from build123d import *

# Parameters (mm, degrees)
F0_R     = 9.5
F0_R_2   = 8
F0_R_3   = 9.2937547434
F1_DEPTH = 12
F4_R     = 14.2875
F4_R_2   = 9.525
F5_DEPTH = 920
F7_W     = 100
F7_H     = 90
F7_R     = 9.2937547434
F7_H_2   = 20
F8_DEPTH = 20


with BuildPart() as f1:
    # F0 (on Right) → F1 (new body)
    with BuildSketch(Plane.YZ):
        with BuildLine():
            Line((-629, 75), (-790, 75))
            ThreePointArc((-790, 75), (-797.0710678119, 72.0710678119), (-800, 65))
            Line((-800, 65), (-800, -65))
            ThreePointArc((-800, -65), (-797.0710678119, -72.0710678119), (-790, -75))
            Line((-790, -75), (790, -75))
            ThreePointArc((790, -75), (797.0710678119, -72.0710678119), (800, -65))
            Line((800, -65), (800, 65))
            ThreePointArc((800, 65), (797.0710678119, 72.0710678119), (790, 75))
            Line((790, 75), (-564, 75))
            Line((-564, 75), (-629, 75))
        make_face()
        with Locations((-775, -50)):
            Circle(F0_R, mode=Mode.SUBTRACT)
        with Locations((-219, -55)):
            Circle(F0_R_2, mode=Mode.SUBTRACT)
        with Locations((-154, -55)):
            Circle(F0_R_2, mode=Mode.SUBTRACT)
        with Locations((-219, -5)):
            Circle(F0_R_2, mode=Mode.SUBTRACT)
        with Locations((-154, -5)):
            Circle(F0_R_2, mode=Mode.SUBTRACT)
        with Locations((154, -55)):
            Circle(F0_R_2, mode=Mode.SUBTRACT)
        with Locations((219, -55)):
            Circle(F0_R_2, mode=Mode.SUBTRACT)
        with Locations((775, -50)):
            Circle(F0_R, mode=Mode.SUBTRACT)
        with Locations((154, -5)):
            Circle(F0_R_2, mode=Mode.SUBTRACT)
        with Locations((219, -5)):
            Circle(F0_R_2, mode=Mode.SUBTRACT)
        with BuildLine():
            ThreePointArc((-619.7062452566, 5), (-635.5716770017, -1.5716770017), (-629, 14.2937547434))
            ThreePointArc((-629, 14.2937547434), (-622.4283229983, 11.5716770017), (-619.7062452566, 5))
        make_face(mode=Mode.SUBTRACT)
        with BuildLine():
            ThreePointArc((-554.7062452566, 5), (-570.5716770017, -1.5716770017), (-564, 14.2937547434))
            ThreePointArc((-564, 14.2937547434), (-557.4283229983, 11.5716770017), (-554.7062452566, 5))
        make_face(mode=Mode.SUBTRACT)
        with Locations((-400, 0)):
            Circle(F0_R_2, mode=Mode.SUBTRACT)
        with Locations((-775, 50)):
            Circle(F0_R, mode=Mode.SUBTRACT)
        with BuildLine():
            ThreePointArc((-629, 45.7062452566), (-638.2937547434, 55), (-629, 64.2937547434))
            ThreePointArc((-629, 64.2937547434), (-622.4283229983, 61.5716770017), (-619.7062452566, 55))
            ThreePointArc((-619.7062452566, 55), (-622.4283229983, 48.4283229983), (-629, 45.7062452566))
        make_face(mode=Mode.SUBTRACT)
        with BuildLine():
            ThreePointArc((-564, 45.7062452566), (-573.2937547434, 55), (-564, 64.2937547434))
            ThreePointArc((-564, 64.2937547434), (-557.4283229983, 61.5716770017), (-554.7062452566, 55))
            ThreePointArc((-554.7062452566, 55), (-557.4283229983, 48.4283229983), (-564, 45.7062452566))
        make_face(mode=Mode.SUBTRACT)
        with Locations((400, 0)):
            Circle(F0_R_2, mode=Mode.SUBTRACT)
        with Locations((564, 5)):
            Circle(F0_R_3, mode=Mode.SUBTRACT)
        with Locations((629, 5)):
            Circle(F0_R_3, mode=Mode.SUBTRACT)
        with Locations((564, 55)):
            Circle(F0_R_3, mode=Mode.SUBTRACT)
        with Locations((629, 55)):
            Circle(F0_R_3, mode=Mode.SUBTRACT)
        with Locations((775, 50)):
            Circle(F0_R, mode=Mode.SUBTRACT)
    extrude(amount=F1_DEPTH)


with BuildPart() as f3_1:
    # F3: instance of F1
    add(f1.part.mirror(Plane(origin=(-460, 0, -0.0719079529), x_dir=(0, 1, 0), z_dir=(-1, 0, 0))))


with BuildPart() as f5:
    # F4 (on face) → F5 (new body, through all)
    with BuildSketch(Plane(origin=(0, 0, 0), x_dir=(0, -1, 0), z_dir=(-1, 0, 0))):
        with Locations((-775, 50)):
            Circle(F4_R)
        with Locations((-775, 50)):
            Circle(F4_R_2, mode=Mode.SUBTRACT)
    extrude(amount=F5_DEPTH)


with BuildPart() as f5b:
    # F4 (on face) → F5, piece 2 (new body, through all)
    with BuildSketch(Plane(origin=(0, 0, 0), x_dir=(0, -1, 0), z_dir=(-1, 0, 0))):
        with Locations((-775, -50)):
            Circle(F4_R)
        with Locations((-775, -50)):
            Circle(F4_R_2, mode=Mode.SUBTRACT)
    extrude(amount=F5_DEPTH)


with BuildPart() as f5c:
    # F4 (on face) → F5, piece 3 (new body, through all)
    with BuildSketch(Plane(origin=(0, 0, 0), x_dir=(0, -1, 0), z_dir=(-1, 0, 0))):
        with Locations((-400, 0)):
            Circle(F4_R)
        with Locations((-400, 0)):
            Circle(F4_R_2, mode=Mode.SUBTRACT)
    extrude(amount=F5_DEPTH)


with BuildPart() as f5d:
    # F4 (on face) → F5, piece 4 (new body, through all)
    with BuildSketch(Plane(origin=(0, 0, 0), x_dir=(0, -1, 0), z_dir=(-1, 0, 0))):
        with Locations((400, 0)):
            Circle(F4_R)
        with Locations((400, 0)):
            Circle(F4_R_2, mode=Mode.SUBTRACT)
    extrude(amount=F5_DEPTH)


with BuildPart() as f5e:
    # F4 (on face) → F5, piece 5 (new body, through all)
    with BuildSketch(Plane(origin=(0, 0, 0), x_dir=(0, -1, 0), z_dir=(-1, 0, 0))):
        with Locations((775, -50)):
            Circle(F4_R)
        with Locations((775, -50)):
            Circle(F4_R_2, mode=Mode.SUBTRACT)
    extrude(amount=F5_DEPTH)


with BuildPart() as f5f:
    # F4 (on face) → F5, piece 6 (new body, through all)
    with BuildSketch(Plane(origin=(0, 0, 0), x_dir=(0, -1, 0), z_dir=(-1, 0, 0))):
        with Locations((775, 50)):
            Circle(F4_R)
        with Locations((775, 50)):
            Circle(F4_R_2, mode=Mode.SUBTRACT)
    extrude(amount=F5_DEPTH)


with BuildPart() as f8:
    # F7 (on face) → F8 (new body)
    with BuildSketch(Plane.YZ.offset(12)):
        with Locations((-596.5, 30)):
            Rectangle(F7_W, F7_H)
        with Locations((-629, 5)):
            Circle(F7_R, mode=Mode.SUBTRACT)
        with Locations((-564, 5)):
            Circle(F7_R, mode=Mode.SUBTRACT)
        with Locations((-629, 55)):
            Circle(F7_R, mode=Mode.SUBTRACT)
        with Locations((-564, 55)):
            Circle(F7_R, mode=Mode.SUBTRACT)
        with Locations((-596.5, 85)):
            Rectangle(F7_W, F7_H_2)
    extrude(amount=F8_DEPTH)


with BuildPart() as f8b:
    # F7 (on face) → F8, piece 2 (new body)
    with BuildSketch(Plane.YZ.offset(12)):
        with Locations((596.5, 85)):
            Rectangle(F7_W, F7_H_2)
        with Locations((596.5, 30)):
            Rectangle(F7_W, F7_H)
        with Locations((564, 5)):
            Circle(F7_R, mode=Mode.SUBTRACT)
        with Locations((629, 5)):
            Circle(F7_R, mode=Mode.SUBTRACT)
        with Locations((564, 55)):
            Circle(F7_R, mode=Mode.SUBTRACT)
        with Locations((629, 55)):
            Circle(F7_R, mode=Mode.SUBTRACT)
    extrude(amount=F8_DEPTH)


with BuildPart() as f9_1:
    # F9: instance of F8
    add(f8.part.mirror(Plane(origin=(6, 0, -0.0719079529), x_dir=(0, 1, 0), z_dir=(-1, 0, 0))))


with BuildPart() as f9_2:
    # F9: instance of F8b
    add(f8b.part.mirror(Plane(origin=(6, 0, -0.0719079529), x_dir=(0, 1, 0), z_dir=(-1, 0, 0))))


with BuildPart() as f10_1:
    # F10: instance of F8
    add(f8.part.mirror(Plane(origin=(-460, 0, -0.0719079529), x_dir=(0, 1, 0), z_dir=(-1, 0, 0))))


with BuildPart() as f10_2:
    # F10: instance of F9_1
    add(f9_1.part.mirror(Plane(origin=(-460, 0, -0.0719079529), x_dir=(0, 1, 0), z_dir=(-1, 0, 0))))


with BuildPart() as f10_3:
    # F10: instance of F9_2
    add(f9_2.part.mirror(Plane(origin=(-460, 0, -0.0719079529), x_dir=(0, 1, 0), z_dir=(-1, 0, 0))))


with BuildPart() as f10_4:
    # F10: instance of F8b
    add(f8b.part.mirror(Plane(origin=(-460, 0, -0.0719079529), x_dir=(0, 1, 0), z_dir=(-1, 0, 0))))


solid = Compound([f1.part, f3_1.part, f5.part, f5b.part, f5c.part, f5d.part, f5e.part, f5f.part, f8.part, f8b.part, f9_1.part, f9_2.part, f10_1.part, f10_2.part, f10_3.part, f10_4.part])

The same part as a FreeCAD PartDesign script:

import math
import FreeCAD as App
import Part
import Sketcher
from FreeCAD import Vector
Q = App.Units.Quantity


def add_polygon(sketch, points):
    """Adds a closed chain of lines whose ends are joined by coincident constraints."""
    first, n = sketch.GeometryCount, len(points)
    for a, b in zip(points, points[1:] + points[:1]):
        sketch.addGeometry(Part.LineSegment(App.Vector(*a, 0), App.Vector(*b, 0)), False)
    for i in range(n):
        sketch.addConstraint(Sketcher.Constraint("Coincident", first + i, 2, first + (i + 1) % n, 1))

doc = App.newDocument("Part")
body = doc.addObject("PartDesign::Body", "Body")

# Sketch on YZ plane
sketch1 = doc.addObject("Sketcher::SketchObject", "Sketch")
body.addObject(sketch1)
sketch1.AttachmentSupport = (doc.YZ_Plane, [""])
sketch1.MapMode = "FlatFace"
sketch1.addGeometry([
    Part.ArcOfCircle(Part.Circle(Vector(-790, 65, 0), Vector(0, 0, 1), 10), math.radians(90), math.radians(180)),  # 0
    Part.LineSegment(Vector(-800, 65, 0), Vector(-800, -65, 0)),  # 1
    Part.ArcOfCircle(Part.Circle(Vector(-790, -65, 0), Vector(0, 0, 1), 10), math.radians(180), math.radians(270)),  # 2
    Part.LineSegment(Vector(-790, -75, 0), Vector(790, -75, 0)),  # 3
    Part.ArcOfCircle(Part.Circle(Vector(790, -65, 0), Vector(0, 0, 1), 10), math.radians(-90), math.radians(0)),  # 4
    Part.LineSegment(Vector(800, -65, 0), Vector(800, 65, 0)),  # 5
    Part.ArcOfCircle(Part.Circle(Vector(790, 65, 0), Vector(0, 0, 1), 10), math.radians(0), math.radians(90)),  # 6
    Part.LineSegment(Vector(790, 75, 0), Vector(-790, 75, 0)),  # 7
    Part.Circle(Vector(-775, -50, 0), Vector(0, 0, 1), 10),  # 8
    Part.Circle(Vector(-219, -55, 0), Vector(0, 0, 1), 8),  # 9
    Part.Circle(Vector(-154, -55, 0), Vector(0, 0, 1), 8),  # 10
    Part.Circle(Vector(-400, 0, 0), Vector(0, 0, 1), 8),  # 11
    Part.Circle(Vector(-219, -5, 0), Vector(0, 0, 1), 8),  # 12
    Part.Circle(Vector(-154, -5, 0), Vector(0, 0, 1), 8),  # 13
    Part.Circle(Vector(154, -55, 0), Vector(0, 0, 1), 8),  # 14
    Part.Circle(Vector(219, -55, 0), Vector(0, 0, 1), 8),  # 15
    Part.Circle(Vector(775, -50, 0), Vector(0, 0, 1), 10),  # 16
    Part.Circle(Vector(154, -5, 0), Vector(0, 0, 1), 8),  # 17
    Part.Circle(Vector(219, -5, 0), Vector(0, 0, 1), 8),  # 18
    Part.Circle(Vector(400, 0, 0), Vector(0, 0, 1), 8),  # 19
    Part.ArcOfCircle(Part.Circle(Vector(-629, 5, 0), Vector(0, 0, 1), 9), math.radians(0), math.radians(90)),  # 20
    Part.ArcOfCircle(Part.Circle(Vector(-629, 5, 0), Vector(0, 0, 1), 9), math.radians(90), math.radians(360)),  # 21
    Part.ArcOfCircle(Part.Circle(Vector(-564, 5, 0), Vector(0, 0, 1), 9), math.radians(0), math.radians(90)),  # 22
    Part.ArcOfCircle(Part.Circle(Vector(-564, 5, 0), Vector(0, 0, 1), 9), math.radians(90), math.radians(360)),  # 23
    Part.Circle(Vector(-775, 50, 0), Vector(0, 0, 1), 10),  # 24
    Part.ArcOfCircle(Part.Circle(Vector(-629, 55, 0), Vector(0, 0, 1), 9), math.radians(-90), math.radians(0)),  # 25
    Part.ArcOfCircle(Part.Circle(Vector(-629, 55, 0), Vector(0, 0, 1), 9), math.radians(90), math.radians(270)),  # 26
    Part.ArcOfCircle(Part.Circle(Vector(-629, 55, 0), Vector(0, 0, 1), 9), math.radians(0), math.radians(90)),  # 27
    Part.ArcOfCircle(Part.Circle(Vector(-564, 55, 0), Vector(0, 0, 1), 9), math.radians(-90), math.radians(0)),  # 28
    Part.ArcOfCircle(Part.Circle(Vector(-564, 55, 0), Vector(0, 0, 1), 9), math.radians(90), math.radians(270)),  # 29
    Part.ArcOfCircle(Part.Circle(Vector(-564, 55, 0), Vector(0, 0, 1), 9), math.radians(0), math.radians(90)),  # 30
    Part.Circle(Vector(564, 5, 0), Vector(0, 0, 1), 9),  # 31
    Part.Circle(Vector(629, 5, 0), Vector(0, 0, 1), 9),  # 32
    Part.Circle(Vector(564, 55, 0), Vector(0, 0, 1), 9),  # 33
    Part.Circle(Vector(629, 55, 0), Vector(0, 0, 1), 9),  # 34
    Part.Circle(Vector(775, 50, 0), Vector(0, 0, 1), 10),  # 35
], False)
sketch1.addConstraint([
    Sketcher.Constraint("Tangent", 0, 2, 1, 1),
    Sketcher.Constraint("Tangent", 1, 2, 2, 1),
    Sketcher.Constraint("Tangent", 2, 2, 3, 1),
    Sketcher.Constraint("Tangent", 3, 2, 4, 1),
    Sketcher.Constraint("Tangent", 4, 2, 5, 1),
    Sketcher.Constraint("Tangent", 5, 2, 6, 1),
    Sketcher.Constraint("Tangent", 6, 2, 7, 1),
    Sketcher.Constraint("Tangent", 7, 2, 0, 1),
    Sketcher.Constraint("Tangent", 20, 1, 21, 2),
    Sketcher.Constraint("Coincident", 21, 1, 20, 2),
    Sketcher.Constraint("Tangent", 22, 1, 23, 2),
    Sketcher.Constraint("Coincident", 23, 1, 22, 2),
    Sketcher.Constraint("Tangent", 25, 1, 26, 2),
    Sketcher.Constraint("Tangent", 26, 1, 27, 2),
    Sketcher.Constraint("Tangent", 27, 1, 25, 2),
    Sketcher.Constraint("Tangent", 28, 1, 29, 2),
    Sketcher.Constraint("Tangent", 29, 1, 30, 2),
    Sketcher.Constraint("Tangent", 30, 1, 28, 2),
    Sketcher.Constraint("Vertical", 1),
    Sketcher.Constraint("Horizontal", 3),
    Sketcher.Constraint("Vertical", 5),
    Sketcher.Constraint("Horizontal", 7),
    Sketcher.Constraint("Equal", 0, 2),
    Sketcher.Constraint("Equal", 2, 4),
    Sketcher.Constraint("Equal", 4, 6),
    Sketcher.Constraint("Equal", 9, 10),
    Sketcher.Constraint("Equal", 10, 11),
    Sketcher.Constraint("Equal", 11, 12),
    Sketcher.Constraint("Equal", 12, 13),
    Sketcher.Constraint("Equal", 13, 14),
    Sketcher.Constraint("Equal", 14, 15),
    Sketcher.Constraint("Equal", 8, 16),
    Sketcher.Constraint("Equal", 15, 17),
    Sketcher.Constraint("Equal", 17, 18),
    Sketcher.Constraint("Equal", 18, 19),
    Sketcher.Constraint("Equal", 21, 22),
    Sketcher.Constraint("Equal", 16, 24),
    Sketcher.Constraint("Equal", 23, 25),
    Sketcher.Constraint("Equal", 27, 28),
    Sketcher.Constraint("Equal", 30, 31),
    Sketcher.Constraint("Equal", 31, 32),
    Sketcher.Constraint("Equal", 32, 33),
    Sketcher.Constraint("Equal", 33, 34),
    Sketcher.Constraint("Equal", 24, 35),
    Sketcher.Constraint("Symmetric", 0, 3, 4, 3, -1, 1),
    Sketcher.Constraint("Symmetric", 11, 3, 19, 3, -1, 1),
    Sketcher.Constraint("Symmetric", 16, 3, 24, 3, -1, 1),
    Sketcher.Constraint("Symmetric", 8, 3, 35, 3, -1, 1),
    Sketcher.Constraint("Symmetric", 10, 3, 14, 3, -2),
    Sketcher.Constraint("Symmetric", 9, 3, 15, 3, -2),
    Sketcher.Constraint("Symmetric", 8, 3, 16, 3, -2),
    Sketcher.Constraint("Symmetric", 13, 3, 17, 3, -2),
    Sketcher.Constraint("Symmetric", 12, 3, 18, 3, -2),
    Sketcher.Constraint("Symmetric", 22, 3, 31, 3, -2),
    Sketcher.Constraint("Symmetric", 20, 3, 32, 3, -2),
    Sketcher.Constraint("Symmetric", 28, 3, 33, 3, -2),
    Sketcher.Constraint("Symmetric", 25, 3, 34, 3, -2),
    Sketcher.Constraint("PointOnObject", 11, 3, -1),
    Sketcher.Constraint("Horizontal", 9, 3, 10, 3),
    Sketcher.Constraint("Horizontal", 12, 3, 13, 3),
    Sketcher.Constraint("Horizontal", 21, 3, 22, 3),
    Sketcher.Constraint("Horizontal", 27, 3, 28, 3),
    Sketcher.Constraint("Horizontal", 32, 3, 20, 1),
    Sketcher.Constraint("Horizontal", 20, 1, 22, 1),
    Sketcher.Constraint("Horizontal", 34, 3, 27, 1),
    Sketcher.Constraint("Horizontal", 27, 1, 30, 1),
    Sketcher.Constraint("Vertical", 9, 3, 12, 3),
    Sketcher.Constraint("Vertical", 10, 3, 13, 3),
    Sketcher.Constraint("Vertical", 21, 3, 25, 3),
    Sketcher.Constraint("Vertical", 23, 3, 28, 3),
    Sketcher.Constraint("Vertical", 27, 3, 21, 1),
    Sketcher.Constraint("Vertical", 30, 3, 23, 1),
    Sketcher.Constraint("Vertical", 21, 1, 25, 1),
    Sketcher.Constraint("Vertical", 25, 1, 26, 1),
    Sketcher.Constraint("Vertical", 23, 1, 28, 1),
    Sketcher.Constraint("Vertical", 28, 1, 29, 1),
    Sketcher.Constraint("Diameter", 8, Q("19 mm")),
    Sketcher.Constraint("Diameter", 9, Q("16 mm")),
    Sketcher.Constraint("Radius", 0, Q("10 mm")),
    Sketcher.Constraint("DistanceX", 3, 1, 3, 2, Q("1580 mm")),
    Sketcher.Constraint("DistanceY", 1, 2, 1, 1, Q("130 mm")),
    Sketcher.Constraint("DistanceX", 8, 3, -1, 1, Q("775 mm")),
    Sketcher.Constraint("DistanceY", 8, 3, -1, 1, Q("50 mm")),
    Sketcher.Constraint("DistanceX", 9, 3, -1, 1, Q("219 mm")),
    Sketcher.Constraint("DistanceY", 9, 3, -1, 1, Q("55 mm")),
    Sketcher.Constraint("DistanceX", 10, 3, -1, 1, Q("154 mm")),
    Sketcher.Constraint("DistanceX", 11, 3, -1, 1, Q("400 mm")),
    Sketcher.Constraint("DistanceY", 12, 3, -1, 1, Q("5 mm")),
    Sketcher.Constraint("DistanceX", 20, 3, -1, 1, Q("629 mm")),
    Sketcher.Constraint("DistanceY", -1, 1, 20, 3, Q("5 mm")),
    Sketcher.Constraint("DistanceX", 22, 3, -1, 1, Q("564 mm")),
    Sketcher.Constraint("DistanceY", -1, 1, 25, 3, Q("55 mm")),
    Sketcher.Constraint("Diameter", 31, Q("18.587509 mm")),
])
pad1 = doc.addObject("PartDesign::Pad", "Pad")
body.addObject(pad1)
pad1.Profile = sketch1
pad1.Length = 12
body2 = doc.addObject("PartDesign::Body", "Body001")
doc.recompute()

mirroring = doc.addObject("Part::Mirroring", "Mirroring")
mirroring.Source = body
mirroring.Base = Vector(-460, 0, -0.071908)
mirroring.Normal = Vector(-1, 0, 0)
body2.BaseFeature = mirroring
doc.recompute()
body3 = doc.addObject("PartDesign::Body", "Body002")

# Sketch on YZ plane
sketch2 = doc.addObject("Sketcher::SketchObject", "Sketch001")
body3.addObject(sketch2)
sketch2.AttachmentSupport = (doc.getObject("YZ_Plane002"), [""])
sketch2.MapMode = "FlatFace"
sketch2.addGeometry([
    Part.Circle(Vector(775, 50, 0), Vector(0, 0, 1), 14),
    Part.Circle(Vector(775, 50, 0), Vector(0, 0, 1), 10),
], False)
sketch2.addConstraint([
    Sketcher.Constraint("Coincident", 1, 3, 0, 3),
    Sketcher.Constraint("Diameter", 1, Q("19.05 mm")),
    Sketcher.Constraint("Diameter", 0, Q("28.575 mm")),
    Sketcher.Constraint("DistanceX", -1, 1, 0, 3, Q("775 mm")),
    Sketcher.Constraint("DistanceY", -1, 1, 0, 3, Q("50 mm")),
])
pad2 = doc.addObject("PartDesign::Pad", "Pad001")
body3.addObject(pad2)
pad2.Profile = sketch2
pad2.Length = 920
pad2.Reversed = True
body4 = doc.addObject("PartDesign::Body", "Body003")

# Sketch on YZ plane
sketch3 = doc.addObject("Sketcher::SketchObject", "Sketch002")
body4.addObject(sketch3)
sketch3.AttachmentSupport = (doc.getObject("YZ_Plane003"), [""])
sketch3.MapMode = "FlatFace"
sketch3.addGeometry([
    Part.Circle(Vector(775, -50, 0), Vector(0, 0, 1), 14),
    Part.Circle(Vector(775, -50, 0), Vector(0, 0, 1), 10),
], False)
sketch3.addConstraint([
    Sketcher.Constraint("Coincident", 1, 3, 0, 3),
    Sketcher.Constraint("Diameter", 1, Q("19.05 mm")),
    Sketcher.Constraint("Diameter", 0, Q("28.575 mm")),
    Sketcher.Constraint("DistanceX", -1, 1, 0, 3, Q("775 mm")),
    Sketcher.Constraint("DistanceY", 0, 3, -1, 1, Q("50 mm")),
])
pad3 = doc.addObject("PartDesign::Pad", "Pad002")
body4.addObject(pad3)
pad3.Profile = sketch3
pad3.Length = 920
pad3.Reversed = True
body5 = doc.addObject("PartDesign::Body", "Body004")

# Sketch on YZ plane
sketch4 = doc.addObject("Sketcher::SketchObject", "Sketch003")
body5.addObject(sketch4)
sketch4.AttachmentSupport = (doc.getObject("YZ_Plane004"), [""])
sketch4.MapMode = "FlatFace"
sketch4.addGeometry([
    Part.Circle(Vector(400, 0, 0), Vector(0, 0, 1), 14),
    Part.Circle(Vector(400, 0, 0), Vector(0, 0, 1), 10),
], False)
sketch4.addConstraint([
    Sketcher.Constraint("Coincident", 1, 3, 0, 3),
    Sketcher.Constraint("PointOnObject", 0, 3, -1),
    Sketcher.Constraint("Diameter", 1, Q("19.05 mm")),
    Sketcher.Constraint("Diameter", 0, Q("28.575 mm")),
    Sketcher.Constraint("DistanceX", -1, 1, 0, 3, Q("400 mm")),
])
pad4 = doc.addObject("PartDesign::Pad", "Pad003")
body5.addObject(pad4)
pad4.Profile = sketch4
pad4.Length = 920
pad4.Reversed = True
body6 = doc.addObject("PartDesign::Body", "Body005")

# Sketch on YZ plane
sketch5 = doc.addObject("Sketcher::SketchObject", "Sketch004")
body6.addObject(sketch5)
sketch5.AttachmentSupport = (doc.getObject("YZ_Plane005"), [""])
sketch5.MapMode = "FlatFace"
sketch5.addGeometry([
    Part.Circle(Vector(-400, 0, 0), Vector(0, 0, 1), 14),
    Part.Circle(Vector(-400, 0, 0), Vector(0, 0, 1), 10),
], False)
sketch5.addConstraint([
    Sketcher.Constraint("Coincident", 1, 3, 0, 3),
    Sketcher.Constraint("PointOnObject", 0, 3, -1),
    Sketcher.Constraint("Diameter", 1, Q("19.05 mm")),
    Sketcher.Constraint("Diameter", 0, Q("28.575 mm")),
    Sketcher.Constraint("DistanceX", 0, 3, -1, 1, Q("400 mm")),
])
pad5 = doc.addObject("PartDesign::Pad", "Pad004")
body6.addObject(pad5)
pad5.Profile = sketch5
pad5.Length = 920
pad5.Reversed = True
body7 = doc.addObject("PartDesign::Body", "Body006")

# Sketch on YZ plane
sketch6 = doc.addObject("Sketcher::SketchObject", "Sketch005")
body7.addObject(sketch6)
sketch6.AttachmentSupport = (doc.getObject("YZ_Plane006"), [""])
sketch6.MapMode = "FlatFace"
sketch6.addGeometry([
    Part.Circle(Vector(-775, -50, 0), Vector(0, 0, 1), 14),
    Part.Circle(Vector(-775, -50, 0), Vector(0, 0, 1), 10),
], False)
sketch6.addConstraint([
    Sketcher.Constraint("Coincident", 1, 3, 0, 3),
    Sketcher.Constraint("Diameter", 1, Q("19.05 mm")),
    Sketcher.Constraint("Diameter", 0, Q("28.575 mm")),
    Sketcher.Constraint("DistanceX", 0, 3, -1, 1, Q("775 mm")),
    Sketcher.Constraint("DistanceY", 0, 3, -1, 1, Q("50 mm")),
])
pad6 = doc.addObject("PartDesign::Pad", "Pad005")
body7.addObject(pad6)
pad6.Profile = sketch6
pad6.Length = 920
pad6.Reversed = True
body8 = doc.addObject("PartDesign::Body", "Body007")

# Sketch on YZ plane
sketch7 = doc.addObject("Sketcher::SketchObject", "Sketch006")
body8.addObject(sketch7)
sketch7.AttachmentSupport = (doc.getObject("YZ_Plane007"), [""])
sketch7.MapMode = "FlatFace"
sketch7.addGeometry([
    Part.Circle(Vector(-775, 50, 0), Vector(0, 0, 1), 14),
    Part.Circle(Vector(-775, 50, 0), Vector(0, 0, 1), 10),
], False)
sketch7.addConstraint([
    Sketcher.Constraint("Coincident", 1, 3, 0, 3),
    Sketcher.Constraint("Diameter", 1, Q("19.05 mm")),
    Sketcher.Constraint("Diameter", 0, Q("28.575 mm")),
    Sketcher.Constraint("DistanceX", 0, 3, -1, 1, Q("775 mm")),
    Sketcher.Constraint("DistanceY", -1, 1, 0, 3, Q("50 mm")),
])
pad7 = doc.addObject("PartDesign::Pad", "Pad006")
body8.addObject(pad7)
pad7.Profile = sketch7
pad7.Length = 920
pad7.Reversed = True
body9 = doc.addObject("PartDesign::Body", "Body008")

# Sketch on YZ plane
sketch8 = doc.addObject("Sketcher::SketchObject", "Sketch007")
body9.addObject(sketch8)
sketch8.AttachmentSupport = (doc.getObject("YZ_Plane008"), [""])
sketch8.MapMode = "FlatFace"
sketch8.AttachmentOffset = App.Placement(Vector(0, 0, 12), App.Rotation())
add_polygon(sketch8, [(-646, -15), (-546, -15), (-546, 95), (-646, 95)])  # lines 0-3
sketch8.addGeometry(Part.Circle(Vector(-629, 5, 0), Vector(0, 0, 1), 9), False)  # 4
sketch8.addGeometry(Part.Circle(Vector(-564, 5, 0), Vector(0, 0, 1), 9), False)  # 5
sketch8.addGeometry(Part.Circle(Vector(-629, 55, 0), Vector(0, 0, 1), 9), False)  # 6
sketch8.addGeometry(Part.Circle(Vector(-564, 55, 0), Vector(0, 0, 1), 9), False)  # 7
sketch8.addConstraint([
    Sketcher.Constraint("Horizontal", 0),
    Sketcher.Constraint("Vertical", 1),
    Sketcher.Constraint("Horizontal", 2),
    Sketcher.Constraint("Vertical", 3),
    Sketcher.Constraint("Equal", 4, 5),
    Sketcher.Constraint("Equal", 5, 6),
    Sketcher.Constraint("Equal", 6, 7),
    Sketcher.Constraint("Horizontal", 4, 3, 5, 3),
    Sketcher.Constraint("Horizontal", 6, 3, 7, 3),
    Sketcher.Constraint("Vertical", 4, 3, 6, 3),
    Sketcher.Constraint("Vertical", 5, 3, 7, 3),
    Sketcher.Constraint("DistanceX", 0, 1, 0, 2, Q("100 mm")),
    Sketcher.Constraint("DistanceY", 1, 1, 1, 2, Q("110 mm")),
    Sketcher.Constraint("DistanceX", 4, 3, -1, 1, Q("629 mm")),
    Sketcher.Constraint("DistanceY", -1, 1, 4, 3, Q("5 mm")),
    Sketcher.Constraint("DistanceX", 5, 3, -1, 1, Q("564 mm")),
    Sketcher.Constraint("DistanceY", -1, 1, 6, 3, Q("55 mm")),
    Sketcher.Constraint("DistanceY", 0, 2, -1, 1, Q("15 mm")),
    Sketcher.Constraint("DistanceX", 0, 2, -1, 1, Q("546.5 mm")),
    Sketcher.Constraint("Diameter", 4, Q("18.587509 mm")),
])
pad8 = doc.addObject("PartDesign::Pad", "Pad007")
body9.addObject(pad8)
pad8.Profile = sketch8
pad8.Length = 20
body10 = doc.addObject("PartDesign::Body", "Body009")

# Sketch on YZ plane
sketch9 = doc.addObject("Sketcher::SketchObject", "Sketch008")
body10.addObject(sketch9)
sketch9.AttachmentSupport = (doc.getObject("YZ_Plane009"), [""])
sketch9.MapMode = "FlatFace"
sketch9.AttachmentOffset = App.Placement(Vector(0, 0, 12), App.Rotation())
add_polygon(sketch9, [(546, 95), (546, -15), (646, -15), (646, 95)])  # lines 0-3
sketch9.addGeometry(Part.Circle(Vector(564, 5, 0), Vector(0, 0, 1), 9), False)  # 4
sketch9.addGeometry(Part.Circle(Vector(629, 5, 0), Vector(0, 0, 1), 9), False)  # 5
sketch9.addGeometry(Part.Circle(Vector(564, 55, 0), Vector(0, 0, 1), 9), False)  # 6
sketch9.addGeometry(Part.Circle(Vector(629, 55, 0), Vector(0, 0, 1), 9), False)  # 7
sketch9.addConstraint([
    Sketcher.Constraint("Vertical", 0),
    Sketcher.Constraint("Horizontal", 1),
    Sketcher.Constraint("Vertical", 2),
    Sketcher.Constraint("Horizontal", 3),
    Sketcher.Constraint("Equal", 4, 5),
    Sketcher.Constraint("Equal", 5, 6),
    Sketcher.Constraint("Equal", 6, 7),
    Sketcher.Constraint("Horizontal", 4, 3, 5, 3),
    Sketcher.Constraint("Horizontal", 6, 3, 7, 3),
    Sketcher.Constraint("Vertical", 4, 3, 6, 3),
    Sketcher.Constraint("Vertical", 5, 3, 7, 3),
    Sketcher.Constraint("DistanceX", 1, 1, 1, 2, Q("100 mm")),
    Sketcher.Constraint("DistanceY", 0, 2, 0, 1, Q("110 mm")),
    Sketcher.Constraint("DistanceX", -1, 1, 4, 3, Q("564 mm")),
    Sketcher.Constraint("DistanceY", -1, 1, 4, 3, Q("5 mm")),
    Sketcher.Constraint("DistanceX", -1, 1, 5, 3, Q("629 mm")),
    Sketcher.Constraint("DistanceY", -1, 1, 6, 3, Q("55 mm")),
    Sketcher.Constraint("DistanceY", 0, 2, -1, 1, Q("15 mm")),
    Sketcher.Constraint("DistanceX", -1, 1, 0, 2, Q("546.5 mm")),
    Sketcher.Constraint("Diameter", 4, Q("18.587509 mm")),
])
pad9 = doc.addObject("PartDesign::Pad", "Pad008")
body10.addObject(pad9)
pad9.Profile = sketch9
pad9.Length = 20
body11 = doc.addObject("PartDesign::Body", "Body010")
doc.recompute()

mirroring2 = doc.addObject("Part::Mirroring", "Mirroring001")
mirroring2.Source = body9
mirroring2.Base = Vector(6, 0, -0.071908)
mirroring2.Normal = Vector(-1, 0, 0)
body11.BaseFeature = mirroring2
doc.recompute()
body12 = doc.addObject("PartDesign::Body", "Body011")
doc.recompute()

mirroring3 = doc.addObject("Part::Mirroring", "Mirroring002")
mirroring3.Source = body10
mirroring3.Base = Vector(6, 0, -0.071908)
mirroring3.Normal = Vector(-1, 0, 0)
body12.BaseFeature = mirroring3
doc.recompute()
body13 = doc.addObject("PartDesign::Body", "Body012")
doc.recompute()

mirroring4 = doc.addObject("Part::Mirroring", "Mirroring003")
mirroring4.Source = body9
mirroring4.Base = Vector(-460, 0, -0.071908)
mirroring4.Normal = Vector(-1, 0, 0)
body13.BaseFeature = mirroring4
doc.recompute()
body14 = doc.addObject("PartDesign::Body", "Body013")
doc.recompute()

mirroring5 = doc.addObject("Part::Mirroring", "Mirroring004")
mirroring5.Source = body11
mirroring5.Base = Vector(-460, 0, -0.071908)
mirroring5.Normal = Vector(-1, 0, 0)
body14.BaseFeature = mirroring5
doc.recompute()
body15 = doc.addObject("PartDesign::Body", "Body014")
doc.recompute()

mirroring6 = doc.addObject("Part::Mirroring", "Mirroring005")
mirroring6.Source = body12
mirroring6.Base = Vector(-460, 0, -0.071908)
mirroring6.Normal = Vector(-1, 0, 0)
body15.BaseFeature = mirroring6
doc.recompute()
body16 = doc.addObject("PartDesign::Body", "Body015")
doc.recompute()

mirroring7 = doc.addObject("Part::Mirroring", "Mirroring006")
mirroring7.Source = body10
mirroring7.Base = Vector(-460, 0, -0.071908)
mirroring7.Normal = Vector(-1, 0, 0)
body16.BaseFeature = mirroring7
doc.recompute()
mirroring.Visibility = False
mirroring2.Visibility = False
mirroring3.Visibility = False
mirroring4.Visibility = False
mirroring5.Visibility = False
mirroring6.Visibility = False
mirroring7.Visibility = False

doc.recompute()
